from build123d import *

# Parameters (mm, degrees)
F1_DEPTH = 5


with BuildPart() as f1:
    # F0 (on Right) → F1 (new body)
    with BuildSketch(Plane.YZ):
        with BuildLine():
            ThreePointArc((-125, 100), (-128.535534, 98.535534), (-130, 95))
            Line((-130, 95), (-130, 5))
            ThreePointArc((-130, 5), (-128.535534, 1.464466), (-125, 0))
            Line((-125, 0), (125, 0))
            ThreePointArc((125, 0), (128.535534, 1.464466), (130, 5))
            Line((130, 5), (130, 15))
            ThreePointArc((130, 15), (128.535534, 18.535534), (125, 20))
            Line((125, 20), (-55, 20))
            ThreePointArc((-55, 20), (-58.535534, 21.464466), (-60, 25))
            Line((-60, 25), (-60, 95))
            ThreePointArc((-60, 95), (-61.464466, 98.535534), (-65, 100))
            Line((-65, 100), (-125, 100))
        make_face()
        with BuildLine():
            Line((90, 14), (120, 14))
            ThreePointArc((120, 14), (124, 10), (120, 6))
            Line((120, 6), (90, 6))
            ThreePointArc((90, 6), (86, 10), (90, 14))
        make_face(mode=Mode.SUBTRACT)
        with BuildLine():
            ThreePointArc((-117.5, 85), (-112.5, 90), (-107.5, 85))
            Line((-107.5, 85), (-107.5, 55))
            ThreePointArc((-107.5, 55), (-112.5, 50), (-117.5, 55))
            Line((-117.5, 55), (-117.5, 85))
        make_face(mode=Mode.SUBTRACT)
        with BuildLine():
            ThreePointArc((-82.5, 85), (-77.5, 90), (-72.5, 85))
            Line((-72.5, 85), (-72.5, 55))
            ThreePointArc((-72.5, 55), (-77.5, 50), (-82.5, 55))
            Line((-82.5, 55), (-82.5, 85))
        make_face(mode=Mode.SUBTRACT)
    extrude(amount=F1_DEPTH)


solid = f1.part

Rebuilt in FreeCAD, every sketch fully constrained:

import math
import FreeCAD as App
import Part
import Sketcher
from FreeCAD import Vector
Q = App.Units.Quantity

doc = App.newDocument("Part")
body = doc.addObject("PartDesign::Body", "Body")

# Sketch on YZ plane
sketch1 = doc.addObject("Sketcher::SketchObject", "Sketch")
body.addObject(sketch1)
sketch1.AttachmentSupport = (doc.YZ_Plane, [""])
sketch1.MapMode = "FlatFace"
sketch1.addGeometry([
    Part.ArcOfCircle(Part.Circle(Vector(-125, 95, 0), Vector(0, 0, 1), 5), math.radians(89.999996), math.radians(180.000004)),  # 0
    Part.LineSegment(Vector(-130, 95, 0), Vector(-130, 5, 0)),  # 1
    Part.ArcOfCircle(Part.Circle(Vector(-125, 5, 0), Vector(0, 0, 1), 5), math.radians(179.999996), math.radians(270.000004)),  # 2
    Part.LineSegment(Vector(-125, 0, 0), Vector(125, 0, 0)),  # 3
    Part.ArcOfCircle(Part.Circle(Vector(125, 5, 0), Vector(0, 0, 1), 5), math.radians(-90.000004), math.radians(0.000004)),  # 4
    Part.LineSegment(Vector(130, 5, 0), Vector(130, 15, 0)),  # 5
    Part.ArcOfCircle(Part.Circle(Vector(125, 15, 0), Vector(0, 0, 1), 5), math.radians(-0.000004), math.radians(90.000004)),  # 6
    Part.LineSegment(Vector(125, 20, 0), Vector(-55, 20, 0)),  # 7
    Part.ArcOfCircle(Part.Circle(Vector(-55, 25, 0), Vector(0, 0, 1), 5), math.radians(179.999996), math.radians(270.000004)),  # 8
    Part.LineSegment(Vector(-60, 25, 0), Vector(-60, 95, 0)),  # 9
    Part.ArcOfCircle(Part.Circle(Vector(-65, 95, 0), Vector(0, 0, 1), 5), math.radians(-0.000004), math.radians(90.000004)),  # 10
    Part.LineSegment(Vector(-65, 100, 0), Vector(-125, 100, 0)),  # 11
    Part.ArcOfCircle(Part.Circle(Vector(90, 10, 0), Vector(0, 0, 1), 4), math.radians(90), math.radians(270)),  # 12
    Part.LineSegment(Vector(90, 14, 0), Vector(120, 14, 0)),  # 13
    Part.ArcOfCircle(Part.Circle(Vector(120, 10, 0), Vector(0, 0, 1), 4), math.radians(-90), math.radians(90)),  # 14
    Part.LineSegment(Vector(120, 6, 0), Vector(90, 6, 0)),  # 15
    Part.LineSegment(Vector(-117.5, 55, 0), Vector(-117.5, 85, 0)),  # 16
    Part.ArcOfCircle(Part.Circle(Vector(-112.5, 85, 0), Vector(0, 0, 1), 5), math.radians(0), math.radians(180)),  # 17
    Part.LineSegment(Vector(-107.5, 85, 0), Vector(-107.5, 55, 0)),  # 18
    Part.ArcOfCircle(Part.Circle(Vector(-112.5, 55, 0), Vector(0, 0, 1), 5), math.radians(180), math.radians(360)),  # 19
    Part.LineSegment(Vector(-82.5, 55, 0), Vector(-82.5, 85, 0)),  # 20
    Part.ArcOfCircle(Part.Circle(Vector(-77.5, 85, 0), Vector(0, 0, 1), 5), math.radians(0), math.radians(180)),  # 21
    Part.LineSegment(Vector(-72.5, 85, 0), Vector(-72.5, 55, 0)),  # 22
    Part.ArcOfCircle(Part.Circle(Vector(-77.5, 55, 0), Vector(0, 0, 1), 5), math.radians(180), math.radians(360)),  # 23
], False)
sketch1.addConstraint([
    Sketcher.Constraint("Tangent", 0, 2, 1, 1),
    Sketcher.Constraint("Tangent", 1, 2, 2, 1),
    Sketcher.Constraint("Tangent", 2, 2, 3, 1),
    Sketcher.Constraint("Tangent", 3, 2, 4, 1),
    Sketcher.Constraint("Tangent", 4, 2, 5, 1),
    Sketcher.Constraint("Tangent", 5, 2, 6, 1),
    Sketcher.Constraint("Tangent", 6, 2, 7, 1),
    Sketcher.Constraint("Tangent", 7, 2, 8, 2),
    Sketcher.Constraint("Tangent", 8, 1, 9, 1),
    Sketcher.Constraint("Tangent", 9, 2, 10, 1),
    Sketcher.Constraint("Tangent", 10, 2, 11, 1),
    Sketcher.Constraint("Tangent", 11, 2, 0, 1),
    Sketcher.Constraint("Tangent", 12, 1, 13, 1),
    Sketcher.Constraint("Tangent", 13, 2, 14, 2),
    Sketcher.Constraint("Tangent", 14, 1, 15, 1),
    Sketcher.Constraint("Tangent", 15, 2, 12, 2),
    Sketcher.Constraint("Tangent", 16, 2, 17, 2),
    Sketcher.Constraint("Tangent", 17, 1, 18, 1),
    Sketcher.Constraint("Tangent", 18, 2, 19, 2),
    Sketcher.Constraint("Tangent", 19, 1, 16, 1),
    Sketcher.Constraint("Tangent", 20, 2, 21, 2),
    Sketcher.Constraint("Tangent", 21, 1, 22, 1),
    Sketcher.Constraint("Tangent", 22, 2, 23, 2),
    Sketcher.Constraint("Tangent", 23, 1, 20, 1),
    Sketcher.Constraint("Vertical", 1),
    Sketcher.Constraint("Horizontal", 3),
    Sketcher.Constraint("Vertical", 5),
    Sketcher.Constraint("Horizontal", 7),
    Sketcher.Constraint("Vertical", 9),
    Sketcher.Constraint("Horizontal", 11),
    Sketcher.Constraint("Horizontal", 13),
    Sketcher.Constraint("Horizontal", 15),
    Sketcher.Constraint("Vertical", 16),
    Sketcher.Constraint("Vertical", 18),
    Sketcher.Constraint("Vertical", 20),
    Sketcher.Constraint("Vertical", 22),
    Sketcher.Constraint("Equal", 0, 2),
    Sketcher.Constraint("Equal", 2, 4),
    Sketcher.Constraint("Equal", 4, 6),
    Sketcher.Constraint("Equal", 6, 8),
    Sketcher.Constraint("Equal", 8, 10),
    Sketcher.Constraint("Equal", 10, 17),
    Sketcher.Constraint("Equal", 19, 21),
    Sketcher.Constraint("Symmetric", 2, 2, 3, 2, -1, 1),
    Sketcher.Constraint("Horizontal", 17, 3, 21, 3),
    Sketcher.Constraint("Horizontal", 19, 3, 23, 3),
    Sketcher.Constraint("Equal", 15, 16),
    Sketcher.Constraint("Radius", 0, Q("5 mm")),
    Sketcher.Constraint("Radius", 12, Q("4 mm")),
    Sketcher.Constraint("DistanceX", 3, 1, 3, 2, Q("250 mm")),
    Sketcher.Constraint("DistanceX", 7, 2, 7, 1, Q("180 mm")),
    Sketcher.Constraint("DistanceX", 13, 1, 13, 2, Q("30 mm")),
    Sketcher.Constraint("DistanceY", 1, 2, 1, 1, Q("90 mm")),
    Sketcher.Constraint("DistanceY", 5, 1, 5, 2, Q("10 mm")),
    Sketcher.Constraint("DistanceX", -1, 1, 12, 3, Q("90 mm")),
    Sketcher.Constraint("DistanceY", -1, 1, 12, 3, Q("10 mm")),
    Sketcher.Constraint("DistanceY", -1, 1, 17, 3, Q("85 mm")),
    Sketcher.Constraint("DistanceX", 17, 3, 21, 3, Q("35 mm")),
    Sketcher.Constraint("DistanceX", 17, 3, -1, 1, Q("112.5 mm")),
])
pad1 = doc.addObject("PartDesign::Pad", "Pad")
body.addObject(pad1)
pad1.Profile = sketch1
pad1.Length = 5

doc.recompute()
